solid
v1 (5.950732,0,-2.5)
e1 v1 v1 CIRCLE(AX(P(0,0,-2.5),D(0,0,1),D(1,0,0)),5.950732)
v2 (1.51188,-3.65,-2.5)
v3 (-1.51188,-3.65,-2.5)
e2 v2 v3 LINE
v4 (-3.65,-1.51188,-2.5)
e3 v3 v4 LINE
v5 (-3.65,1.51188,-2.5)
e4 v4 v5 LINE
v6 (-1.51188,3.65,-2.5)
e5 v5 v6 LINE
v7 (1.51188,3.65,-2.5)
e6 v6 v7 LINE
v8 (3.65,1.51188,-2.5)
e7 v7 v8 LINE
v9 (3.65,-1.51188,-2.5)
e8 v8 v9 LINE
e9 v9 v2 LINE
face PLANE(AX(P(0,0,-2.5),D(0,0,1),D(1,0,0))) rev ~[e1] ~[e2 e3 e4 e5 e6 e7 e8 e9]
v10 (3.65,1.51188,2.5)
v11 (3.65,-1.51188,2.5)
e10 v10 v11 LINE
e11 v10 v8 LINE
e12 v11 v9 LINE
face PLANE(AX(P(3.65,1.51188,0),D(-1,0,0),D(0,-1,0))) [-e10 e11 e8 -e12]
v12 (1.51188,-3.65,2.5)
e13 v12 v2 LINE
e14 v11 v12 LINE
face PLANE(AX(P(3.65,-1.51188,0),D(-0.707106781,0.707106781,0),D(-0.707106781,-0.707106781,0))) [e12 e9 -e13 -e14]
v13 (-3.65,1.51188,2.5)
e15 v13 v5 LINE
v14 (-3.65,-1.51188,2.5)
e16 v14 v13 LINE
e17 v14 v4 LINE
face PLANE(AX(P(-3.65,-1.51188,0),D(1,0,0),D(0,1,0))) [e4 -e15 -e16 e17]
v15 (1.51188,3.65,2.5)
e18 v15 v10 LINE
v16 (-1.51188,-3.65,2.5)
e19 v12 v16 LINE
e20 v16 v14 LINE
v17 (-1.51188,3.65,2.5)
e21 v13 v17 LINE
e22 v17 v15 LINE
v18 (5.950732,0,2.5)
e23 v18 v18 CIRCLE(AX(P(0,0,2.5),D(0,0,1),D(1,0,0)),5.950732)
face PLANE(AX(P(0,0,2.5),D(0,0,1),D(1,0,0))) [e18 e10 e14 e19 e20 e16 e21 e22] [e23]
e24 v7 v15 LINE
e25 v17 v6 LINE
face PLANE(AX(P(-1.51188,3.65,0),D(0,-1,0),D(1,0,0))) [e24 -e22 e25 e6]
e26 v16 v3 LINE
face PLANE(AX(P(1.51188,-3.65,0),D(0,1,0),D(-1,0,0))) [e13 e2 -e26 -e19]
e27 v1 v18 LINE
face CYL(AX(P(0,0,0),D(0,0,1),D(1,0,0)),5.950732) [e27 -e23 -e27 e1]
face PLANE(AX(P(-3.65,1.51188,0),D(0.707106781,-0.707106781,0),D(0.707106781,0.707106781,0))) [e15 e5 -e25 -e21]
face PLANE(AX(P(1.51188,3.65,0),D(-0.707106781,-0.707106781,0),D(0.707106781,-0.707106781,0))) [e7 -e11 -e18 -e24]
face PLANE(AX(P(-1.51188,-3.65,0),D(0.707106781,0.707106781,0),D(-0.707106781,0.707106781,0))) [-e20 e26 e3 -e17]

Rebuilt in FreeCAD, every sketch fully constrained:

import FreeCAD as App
import Part
import Sketcher

doc = App.newDocument("Part")
body = doc.addObject("PartDesign::Body", "Body")

# Sketch on XY plane
sketch1 = body.newObject("Sketcher::SketchObject", "Sketch")
sketch1.AttachmentSupport = (doc.getObject("XY_Plane"), [""])
sketch1.MapMode = "FlatFace"
sketch1.addGeometry([
    Part.Circle(App.Vector(0, 0, 0), App.Vector(0, 0, 1), 6),  # 0
    Part.LineSegment(App.Vector(-1.5, 3.6, 0), App.Vector(1.5, 3.6, 0)),  # 1
    Part.LineSegment(App.Vector(1.5, 3.6, 0), App.Vector(3.6, 1.5, 0)),  # 2
    Part.LineSegment(App.Vector(3.6, 1.5, 0), App.Vector(3.6, -1.5, 0)),  # 3
    Part.LineSegment(App.Vector(3.6, -1.5, 0), App.Vector(1.5, -3.6, 0)),  # 4
    Part.LineSegment(App.Vector(1.5, -3.6, 0), App.Vector(-1.5, -3.6, 0)),  # 5
    Part.LineSegment(App.Vector(-1.5, -3.6, 0), App.Vector(-3.6, -1.5, 0)),  # 6
    Part.LineSegment(App.Vector(-3.6, -1.5, 0), App.Vector(-3.6, 1.5, 0)),  # 7
    Part.LineSegment(App.Vector(-3.6, 1.5, 0), App.Vector(-1.5, 3.6, 0)),  # 8
], False)
sketch1.addConstraint([
    Sketcher.Constraint("Coincident", 1, 2, 2, 1),
    Sketcher.Constraint("Coincident", 2, 2, 3, 1),
    Sketcher.Constraint("Coincident", 3, 2, 4, 1),
    Sketcher.Constraint("Coincident", 4, 2, 5, 1),
    Sketcher.Constraint("Coincident", 5, 2, 6, 1),
    Sketcher.Constraint("Coincident", 6, 2, 7, 1),
    Sketcher.Constraint("Coincident", 7, 2, 8, 1),
    Sketcher.Constraint("Coincident", 8, 2, 1, 1),
    Sketcher.Constraint("Horizontal", 1),
    Sketcher.Constraint("Vertical", 3),
    Sketcher.Constraint("Horizontal", 5),
    Sketcher.Constraint("Vertical", 7),
    Sketcher.Constraint("Coincident", 0, 3, -1, 1),
    Sketcher.Constraint("Symmetric", 1, 2, 5, 2, -1, 1),
    Sketcher.Constraint("Symmetric", 2, 2, 6, 2, -1, 1),
    Sketcher.Constraint("Perpendicular", 2, 4),
    Sketcher.Constraint("Perpendicular", 6, 8),
    Sketcher.Constraint("Horizontal", 3, 2, 6, 2),
    Sketcher.Constraint("Horizontal", 2, 2, 7, 2),
    Sketcher.Constraint("Vertical", 1, 2, 4, 2),
    Sketcher.Constraint("Equal", 5, 3),
    Sketcher.Constraint("DistanceY", 4, 2, 1, 2, 7.3),
    Sketcher.Constraint("Diameter", 0, 11.901463),
    Sketcher.Constraint("DistanceX", 1, 1, 1, 2, 3.023759),
])
pad1 = body.newObject("PartDesign::Pad", "Pad")
pad1.Profile = sketch1
pad1.Length = 5
pad1.Midplane = True

doc.recompute()
